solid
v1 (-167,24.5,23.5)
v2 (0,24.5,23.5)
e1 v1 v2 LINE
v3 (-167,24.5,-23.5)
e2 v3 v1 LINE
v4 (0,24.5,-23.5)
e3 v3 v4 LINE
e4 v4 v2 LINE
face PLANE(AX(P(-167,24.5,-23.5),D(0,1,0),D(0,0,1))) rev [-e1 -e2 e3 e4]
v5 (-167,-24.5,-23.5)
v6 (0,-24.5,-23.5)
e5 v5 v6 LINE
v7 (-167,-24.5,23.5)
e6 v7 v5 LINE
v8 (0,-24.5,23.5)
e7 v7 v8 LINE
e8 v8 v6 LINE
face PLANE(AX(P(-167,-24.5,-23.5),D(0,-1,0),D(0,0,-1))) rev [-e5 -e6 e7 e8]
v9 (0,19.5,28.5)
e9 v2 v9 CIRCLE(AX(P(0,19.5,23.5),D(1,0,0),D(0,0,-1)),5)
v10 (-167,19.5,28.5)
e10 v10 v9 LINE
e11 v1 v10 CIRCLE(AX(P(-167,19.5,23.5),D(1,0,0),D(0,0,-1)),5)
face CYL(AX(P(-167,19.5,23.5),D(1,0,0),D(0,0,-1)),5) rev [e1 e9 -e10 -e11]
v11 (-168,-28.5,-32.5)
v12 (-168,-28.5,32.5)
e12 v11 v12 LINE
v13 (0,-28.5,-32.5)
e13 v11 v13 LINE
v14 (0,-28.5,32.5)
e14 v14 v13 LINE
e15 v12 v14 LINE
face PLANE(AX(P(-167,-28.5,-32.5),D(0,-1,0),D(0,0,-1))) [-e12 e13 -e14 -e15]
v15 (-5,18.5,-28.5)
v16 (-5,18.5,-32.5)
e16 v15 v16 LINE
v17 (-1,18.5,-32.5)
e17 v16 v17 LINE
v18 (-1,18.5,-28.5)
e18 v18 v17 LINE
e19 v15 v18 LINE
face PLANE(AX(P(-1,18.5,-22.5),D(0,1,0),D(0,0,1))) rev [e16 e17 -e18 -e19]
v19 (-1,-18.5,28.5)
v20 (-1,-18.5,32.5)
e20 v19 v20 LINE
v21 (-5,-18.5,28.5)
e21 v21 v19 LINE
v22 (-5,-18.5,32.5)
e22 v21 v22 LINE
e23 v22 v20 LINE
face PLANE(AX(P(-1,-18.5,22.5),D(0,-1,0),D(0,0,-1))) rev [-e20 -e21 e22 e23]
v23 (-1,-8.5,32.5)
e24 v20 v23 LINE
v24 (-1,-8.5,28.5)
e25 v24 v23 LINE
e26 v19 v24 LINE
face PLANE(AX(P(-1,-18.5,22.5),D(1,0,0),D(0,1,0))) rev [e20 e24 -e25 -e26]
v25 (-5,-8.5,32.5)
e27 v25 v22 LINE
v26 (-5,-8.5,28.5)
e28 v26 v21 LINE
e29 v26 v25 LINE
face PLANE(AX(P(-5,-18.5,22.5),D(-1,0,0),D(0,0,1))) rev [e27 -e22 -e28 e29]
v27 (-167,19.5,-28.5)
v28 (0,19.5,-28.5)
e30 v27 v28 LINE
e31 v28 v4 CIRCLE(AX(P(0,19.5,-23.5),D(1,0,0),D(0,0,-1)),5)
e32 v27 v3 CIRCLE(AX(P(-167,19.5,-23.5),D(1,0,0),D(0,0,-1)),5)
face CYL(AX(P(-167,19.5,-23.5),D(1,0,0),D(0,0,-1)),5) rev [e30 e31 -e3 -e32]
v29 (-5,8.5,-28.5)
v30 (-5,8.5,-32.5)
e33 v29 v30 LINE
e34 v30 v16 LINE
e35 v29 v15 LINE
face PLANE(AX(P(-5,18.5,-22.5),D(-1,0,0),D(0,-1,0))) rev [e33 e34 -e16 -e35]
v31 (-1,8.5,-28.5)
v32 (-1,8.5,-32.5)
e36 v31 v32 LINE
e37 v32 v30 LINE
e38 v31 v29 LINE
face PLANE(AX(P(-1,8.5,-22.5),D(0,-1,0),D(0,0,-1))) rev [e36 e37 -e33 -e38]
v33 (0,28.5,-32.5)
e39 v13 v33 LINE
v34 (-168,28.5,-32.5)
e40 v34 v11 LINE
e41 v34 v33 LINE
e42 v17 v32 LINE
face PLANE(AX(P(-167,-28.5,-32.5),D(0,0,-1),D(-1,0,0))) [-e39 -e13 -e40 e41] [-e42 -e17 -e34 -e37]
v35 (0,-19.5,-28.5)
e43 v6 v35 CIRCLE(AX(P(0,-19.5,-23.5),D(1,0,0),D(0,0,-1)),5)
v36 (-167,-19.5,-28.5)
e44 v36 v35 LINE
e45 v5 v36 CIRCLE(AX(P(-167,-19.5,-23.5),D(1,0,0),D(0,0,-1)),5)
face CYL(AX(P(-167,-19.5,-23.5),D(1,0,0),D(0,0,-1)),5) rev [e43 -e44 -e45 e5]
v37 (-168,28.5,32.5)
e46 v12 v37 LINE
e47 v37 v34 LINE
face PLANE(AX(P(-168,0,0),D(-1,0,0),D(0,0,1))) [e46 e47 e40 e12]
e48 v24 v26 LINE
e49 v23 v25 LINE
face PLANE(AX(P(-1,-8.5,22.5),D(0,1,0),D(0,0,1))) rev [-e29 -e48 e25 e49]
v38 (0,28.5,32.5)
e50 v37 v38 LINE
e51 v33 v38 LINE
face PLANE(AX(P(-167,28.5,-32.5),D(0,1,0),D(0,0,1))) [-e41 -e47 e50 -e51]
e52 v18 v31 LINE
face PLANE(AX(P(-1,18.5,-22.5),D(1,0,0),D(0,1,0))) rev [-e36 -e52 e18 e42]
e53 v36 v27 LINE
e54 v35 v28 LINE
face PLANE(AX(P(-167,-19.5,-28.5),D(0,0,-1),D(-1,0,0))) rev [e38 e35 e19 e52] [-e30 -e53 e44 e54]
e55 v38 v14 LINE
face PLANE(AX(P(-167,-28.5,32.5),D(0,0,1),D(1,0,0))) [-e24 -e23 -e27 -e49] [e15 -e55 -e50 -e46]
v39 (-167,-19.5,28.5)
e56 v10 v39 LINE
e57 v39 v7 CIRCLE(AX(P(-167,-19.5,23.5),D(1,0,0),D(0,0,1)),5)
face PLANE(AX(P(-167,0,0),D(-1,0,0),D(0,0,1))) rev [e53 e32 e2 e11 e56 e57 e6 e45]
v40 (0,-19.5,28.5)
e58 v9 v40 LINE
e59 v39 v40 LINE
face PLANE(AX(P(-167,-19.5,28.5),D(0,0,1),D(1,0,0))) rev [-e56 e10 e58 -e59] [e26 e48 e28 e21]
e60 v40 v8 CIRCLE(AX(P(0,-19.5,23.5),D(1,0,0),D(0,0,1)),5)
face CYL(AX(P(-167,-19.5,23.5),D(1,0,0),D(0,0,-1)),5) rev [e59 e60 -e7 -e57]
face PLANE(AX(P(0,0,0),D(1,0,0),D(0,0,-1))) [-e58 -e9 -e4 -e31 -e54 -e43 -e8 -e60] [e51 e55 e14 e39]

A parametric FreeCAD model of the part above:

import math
import FreeCAD as App
import Part
import Sketcher
Q = App.Units.Quantity

doc = App.newDocument("Part")
params = doc.addObject("Spreadsheet::Sheet", "Params")
for row, (alias, value) in enumerate([
    ("sketch1_radius", "5 mm"),
    ("sketch1_width", "57 mm"),
    ("sketch1_width2", "39 mm"),
    ("sketch1_height", "65 mm"),
    ("sketch1_height2", "47 mm"),
    ("pad1_length", "167 mm"),
    ("sketch2_width", "4 mm"),
    ("sketch2_height", "10 mm"),
    ("pocket1_length", "10 mm"),
    ("sketch3_width", "57 mm"),
    ("sketch3_height", "65 mm"),
    ("pad2_length", "1 mm"),
    ("sketch4_width", "4 mm"),
    ("sketch4_height", "10 mm"),
    ("pocket2_length", "10 mm"),
], start=1):
    params.set(f"A{row}", alias)
    params.set(f"B{row}", "=" + value)
    params.setAlias(f"B{row}", alias)

body = doc.addObject("PartDesign::Body", "Body")

# Sketch on YZ plane
sketch1 = body.newObject("Sketcher::SketchObject", "Sketch")
sketch1.AttachmentSupport = (doc.getObject("YZ_Plane"), [""])
sketch1.MapMode = "FlatFace"
sketch1.addGeometry([
    Part.LineSegment(App.Vector(28, 32, 0), App.Vector(-28, 32, 0)),  # 0
    Part.LineSegment(App.Vector(-28, 32, 0), App.Vector(-28, -32, 0)),  # 1
    Part.LineSegment(App.Vector(-28, -32, 0), App.Vector(28, -32, 0)),  # 2
    Part.LineSegment(App.Vector(28, -32, 0), App.Vector(28, 32, 0)),  # 3
    Part.ArcOfCircle(Part.Circle(App.Vector(-20, -24, 0), App.Vector(0, 0, 1), 5), math.radians(180), math.radians(270)),  # 4
    Part.LineSegment(App.Vector(-24, -24, 0), App.Vector(-24, 24, 0)),  # 5
    Part.ArcOfCircle(Part.Circle(App.Vector(-20, 24, 0), App.Vector(0, 0, 1), 5), math.radians(90), math.radians(180)),  # 6
    Part.LineSegment(App.Vector(-20, 28, 0), App.Vector(20, 28, 0)),  # 7
    Part.ArcOfCircle(Part.Circle(App.Vector(20, 24, 0), App.Vector(0, 0, 1), 5), math.radians(0), math.radians(90)),  # 8
    Part.LineSegment(App.Vector(24, 24, 0), App.Vector(24, -24, 0)),  # 9
    Part.ArcOfCircle(Part.Circle(App.Vector(20, -24, 0), App.Vector(0, 0, 1), 5), math.radians(-90), math.radians(0)),  # 10
    Part.LineSegment(App.Vector(20, -28, 0), App.Vector(-20, -28, 0)),  # 11
], False)
sketch1.addConstraint([
    Sketcher.Constraint("Coincident", 0, 2, 1, 1),
    Sketcher.Constraint("Coincident", 1, 2, 2, 1),
    Sketcher.Constraint("Coincident", 2, 2, 3, 1),
    Sketcher.Constraint("Coincident", 3, 2, 0, 1),
    Sketcher.Constraint("Tangent", 4, 1, 5, 1),
    Sketcher.Constraint("Tangent", 5, 2, 6, 2),
    Sketcher.Constraint("Tangent", 6, 1, 7, 1),
    Sketcher.Constraint("Tangent", 7, 2, 8, 2),
    Sketcher.Constraint("Tangent", 8, 1, 9, 1),
    Sketcher.Constraint("Tangent", 9, 2, 10, 2),
    Sketcher.Constraint("Tangent", 10, 1, 11, 1),
    Sketcher.Constraint("Tangent", 11, 2, 4, 2),
    Sketcher.Constraint("Horizontal", 0),
    Sketcher.Constraint("Vertical", 1),
    Sketcher.Constraint("Horizontal", 2),
    Sketcher.Constraint("Vertical", 3),
    Sketcher.Constraint("Vertical", 5),
    Sketcher.Constraint("Horizontal", 7),
    Sketcher.Constraint("Vertical", 9),
    Sketcher.Constraint("Horizontal", 11),
    Sketcher.Constraint("Equal", 4, 6),
    Sketcher.Constraint("Equal", 6, 8),
    Sketcher.Constraint("Equal", 8, 10),
    Sketcher.Constraint("Symmetric", 4, 3, 8, 3, -1, 1),
    Sketcher.Constraint("Symmetric", 0, 2, 2, 2, -1, 1),
    Sketcher.Constraint("Radius", 4, Q("5 mm")),
    Sketcher.Constraint("DistanceX", 0, 2, 0, 1, Q("57 mm")),
    Sketcher.Constraint("DistanceX", 7, 1, 7, 2, Q("39 mm")),
    Sketcher.Constraint("DistanceY", 1, 2, 1, 1, Q("65 mm")),
    Sketcher.Constraint("DistanceY", 5, 1, 5, 2, Q("47 mm")),
])
sketch1.setExpression("Constraints[25]", "Params.sketch1_radius")
sketch1.setExpression("Constraints[26]", "Params.sketch1_width")
sketch1.setExpression("Constraints[27]", "Params.sketch1_width2")
sketch1.setExpression("Constraints[28]", "Params.sketch1_height")
sketch1.setExpression("Constraints[29]", "Params.sketch1_height2")
pad1 = body.newObject("PartDesign::Pad", "Pad")
pad1.Profile = sketch1
pad1.setExpression("Length", "Params.pad1_length")
pad1.Reversed = True

# Sketch on XY plane
sketch2 = body.newObject("Sketcher::SketchObject", "Sketch001")
sketch2.AttachmentSupport = (doc.getObject("XY_Plane"), [""])
sketch2.MapMode = "FlatFace"
sketch2.AttachmentOffset = App.Placement(App.Vector(0, 0, 32.5), App.Rotation())
sketch2.addGeometry([
    Part.LineSegment(App.Vector(-5, -8.5, 0), App.Vector(-5, -18.5, 0)),
    Part.LineSegment(App.Vector(-5, -18.5, 0), App.Vector(-1, -18.5, 0)),
    Part.LineSegment(App.Vector(-1, -18.5, 0), App.Vector(-1, -8.5, 0)),
    Part.LineSegment(App.Vector(-1, -8.5, 0), App.Vector(-5, -8.5, 0)),
], False)
sketch2.addConstraint([
    Sketcher.Constraint("Coincident", 0, 2, 1, 1),
    Sketcher.Constraint("Coincident", 1, 2, 2, 1),
    Sketcher.Constraint("Coincident", 2, 2, 3, 1),
    Sketcher.Constraint("Coincident", 3, 2, 0, 1),
    Sketcher.Constraint("Vertical", 0),
    Sketcher.Constraint("Horizontal", 1),
    Sketcher.Constraint("Vertical", 2),
    Sketcher.Constraint("Horizontal", 3),
    Sketcher.Constraint("DistanceX", 1, 1, 1, 2, Q("4 mm")),
    Sketcher.Constraint("DistanceY", 0, 2, 0, 1, Q("10 mm")),
    Sketcher.Constraint("DistanceX", 0, 2, -1, 1, Q("5 mm")),
    Sketcher.Constraint("DistanceY", 0, 2, -1, 1, Q("18.5 mm")),
])
sketch2.setExpression("Constraints[8]", "Params.sketch2_width")
sketch2.setExpression("Constraints[9]", "Params.sketch2_height")
pocket1 = body.newObject("PartDesign::Pocket", "Pocket")
pocket1.Profile = sketch2
pocket1.setExpression("Length", "Params.pocket1_length")

# Sketch on YZ plane
sketch3 = body.newObject("Sketcher::SketchObject", "Sketch002")
sketch3.AttachmentSupport = (doc.getObject("YZ_Plane"), [""])
sketch3.MapMode = "FlatFace"
sketch3.AttachmentOffset = App.Placement(App.Vector(0, 0, -167), App.Rotation())
sketch3.addGeometry([
    Part.LineSegment(App.Vector(28, -32, 0), App.Vector(-28, -32, 0)),
    Part.LineSegment(App.Vector(-28, -32, 0), App.Vector(-28, 32, 0)),
    Part.LineSegment(App.Vector(-28, 32, 0), App.Vector(28, 32, 0)),
    Part.LineSegment(App.Vector(28, 32, 0), App.Vector(28, -32, 0)),
], False)
sketch3.addConstraint([
    Sketcher.Constraint("Coincident", 0, 2, 1, 1),
    Sketcher.Constraint("Coincident", 1, 2, 2, 1),
    Sketcher.Constraint("Coincident", 2, 2, 3, 1),
    Sketcher.Constraint("Coincident", 3, 2, 0, 1),
    Sketcher.Constraint("Horizontal", 0),
    Sketcher.Constraint("Vertical", 1),
    Sketcher.Constraint("Horizontal", 2),
    Sketcher.Constraint("Vertical", 3),
    Sketcher.Constraint("Symmetric", 0, 2, 2, 2, -1, 1),
    Sketcher.Constraint("DistanceX", 0, 2, 0, 1, Q("57 mm")),
    Sketcher.Constraint("DistanceY", 1, 1, 1, 2, Q("65 mm")),
])
sketch3.setExpression("Constraints[9]", "Params.sketch3_width")
sketch3.setExpression("Constraints[10]", "Params.sketch3_height")
pad2 = body.newObject("PartDesign::Pad", "Pad001")
pad2.Profile = sketch3
pad2.setExpression("Length", "Params.pad2_length")
pad2.Reversed = True

# Sketch on XY plane
sketch4 = body.newObject("Sketcher::SketchObject", "Sketch003")
sketch4.AttachmentSupport = (doc.getObject("XY_Plane"), [""])
sketch4.MapMode = "FlatFace"
sketch4.AttachmentOffset = App.Placement(App.Vector(0, 0, -32.5), App.Rotation())
sketch4.addGeometry([
    Part.LineSegment(App.Vector(-1, 18.5, 0), App.Vector(-1, 8.5, 0)),
    Part.LineSegment(App.Vector(-1, 8.5, 0), App.Vector(-5, 8.5, 0)),
    Part.LineSegment(App.Vector(-5, 8.5, 0), App.Vector(-5, 18.5, 0)),
    Part.LineSegment(App.Vector(-5, 18.5, 0), App.Vector(-1, 18.5, 0)),
], False)
sketch4.addConstraint([
    Sketcher.Constraint("Coincident", 0, 2, 1, 1),
    Sketcher.Constraint("Coincident", 1, 2, 2, 1),
    Sketcher.Constraint("Coincident", 2, 2, 3, 1),
    Sketcher.Constraint("Coincident", 3, 2, 0, 1),
    Sketcher.Constraint("Vertical", 0),
    Sketcher.Constraint("Horizontal", 1),
    Sketcher.Constraint("Vertical", 2),
    Sketcher.Constraint("Horizontal", 3),
    Sketcher.Constraint("DistanceX", 1, 2, 1, 1, Q("4 mm")),
    Sketcher.Constraint("DistanceY", 0, 2, 0, 1, Q("10 mm")),
    Sketcher.Constraint("DistanceX", 0, 2, -1, 1, Q("1 mm")),
    Sketcher.Constraint("DistanceY", -1, 1, 0, 2, Q("8.5 mm")),
])
sketch4.setExpression("Constraints[8]", "Params.sketch4_width")
sketch4.setExpression("Constraints[9]", "Params.sketch4_height")
pocket2 = body.newObject("PartDesign::Pocket", "Pocket001")
pocket2.Profile = sketch4
pocket2.setExpression("Length", "Params.pocket2_length")
pocket2.Reversed = True

doc.recompute()
